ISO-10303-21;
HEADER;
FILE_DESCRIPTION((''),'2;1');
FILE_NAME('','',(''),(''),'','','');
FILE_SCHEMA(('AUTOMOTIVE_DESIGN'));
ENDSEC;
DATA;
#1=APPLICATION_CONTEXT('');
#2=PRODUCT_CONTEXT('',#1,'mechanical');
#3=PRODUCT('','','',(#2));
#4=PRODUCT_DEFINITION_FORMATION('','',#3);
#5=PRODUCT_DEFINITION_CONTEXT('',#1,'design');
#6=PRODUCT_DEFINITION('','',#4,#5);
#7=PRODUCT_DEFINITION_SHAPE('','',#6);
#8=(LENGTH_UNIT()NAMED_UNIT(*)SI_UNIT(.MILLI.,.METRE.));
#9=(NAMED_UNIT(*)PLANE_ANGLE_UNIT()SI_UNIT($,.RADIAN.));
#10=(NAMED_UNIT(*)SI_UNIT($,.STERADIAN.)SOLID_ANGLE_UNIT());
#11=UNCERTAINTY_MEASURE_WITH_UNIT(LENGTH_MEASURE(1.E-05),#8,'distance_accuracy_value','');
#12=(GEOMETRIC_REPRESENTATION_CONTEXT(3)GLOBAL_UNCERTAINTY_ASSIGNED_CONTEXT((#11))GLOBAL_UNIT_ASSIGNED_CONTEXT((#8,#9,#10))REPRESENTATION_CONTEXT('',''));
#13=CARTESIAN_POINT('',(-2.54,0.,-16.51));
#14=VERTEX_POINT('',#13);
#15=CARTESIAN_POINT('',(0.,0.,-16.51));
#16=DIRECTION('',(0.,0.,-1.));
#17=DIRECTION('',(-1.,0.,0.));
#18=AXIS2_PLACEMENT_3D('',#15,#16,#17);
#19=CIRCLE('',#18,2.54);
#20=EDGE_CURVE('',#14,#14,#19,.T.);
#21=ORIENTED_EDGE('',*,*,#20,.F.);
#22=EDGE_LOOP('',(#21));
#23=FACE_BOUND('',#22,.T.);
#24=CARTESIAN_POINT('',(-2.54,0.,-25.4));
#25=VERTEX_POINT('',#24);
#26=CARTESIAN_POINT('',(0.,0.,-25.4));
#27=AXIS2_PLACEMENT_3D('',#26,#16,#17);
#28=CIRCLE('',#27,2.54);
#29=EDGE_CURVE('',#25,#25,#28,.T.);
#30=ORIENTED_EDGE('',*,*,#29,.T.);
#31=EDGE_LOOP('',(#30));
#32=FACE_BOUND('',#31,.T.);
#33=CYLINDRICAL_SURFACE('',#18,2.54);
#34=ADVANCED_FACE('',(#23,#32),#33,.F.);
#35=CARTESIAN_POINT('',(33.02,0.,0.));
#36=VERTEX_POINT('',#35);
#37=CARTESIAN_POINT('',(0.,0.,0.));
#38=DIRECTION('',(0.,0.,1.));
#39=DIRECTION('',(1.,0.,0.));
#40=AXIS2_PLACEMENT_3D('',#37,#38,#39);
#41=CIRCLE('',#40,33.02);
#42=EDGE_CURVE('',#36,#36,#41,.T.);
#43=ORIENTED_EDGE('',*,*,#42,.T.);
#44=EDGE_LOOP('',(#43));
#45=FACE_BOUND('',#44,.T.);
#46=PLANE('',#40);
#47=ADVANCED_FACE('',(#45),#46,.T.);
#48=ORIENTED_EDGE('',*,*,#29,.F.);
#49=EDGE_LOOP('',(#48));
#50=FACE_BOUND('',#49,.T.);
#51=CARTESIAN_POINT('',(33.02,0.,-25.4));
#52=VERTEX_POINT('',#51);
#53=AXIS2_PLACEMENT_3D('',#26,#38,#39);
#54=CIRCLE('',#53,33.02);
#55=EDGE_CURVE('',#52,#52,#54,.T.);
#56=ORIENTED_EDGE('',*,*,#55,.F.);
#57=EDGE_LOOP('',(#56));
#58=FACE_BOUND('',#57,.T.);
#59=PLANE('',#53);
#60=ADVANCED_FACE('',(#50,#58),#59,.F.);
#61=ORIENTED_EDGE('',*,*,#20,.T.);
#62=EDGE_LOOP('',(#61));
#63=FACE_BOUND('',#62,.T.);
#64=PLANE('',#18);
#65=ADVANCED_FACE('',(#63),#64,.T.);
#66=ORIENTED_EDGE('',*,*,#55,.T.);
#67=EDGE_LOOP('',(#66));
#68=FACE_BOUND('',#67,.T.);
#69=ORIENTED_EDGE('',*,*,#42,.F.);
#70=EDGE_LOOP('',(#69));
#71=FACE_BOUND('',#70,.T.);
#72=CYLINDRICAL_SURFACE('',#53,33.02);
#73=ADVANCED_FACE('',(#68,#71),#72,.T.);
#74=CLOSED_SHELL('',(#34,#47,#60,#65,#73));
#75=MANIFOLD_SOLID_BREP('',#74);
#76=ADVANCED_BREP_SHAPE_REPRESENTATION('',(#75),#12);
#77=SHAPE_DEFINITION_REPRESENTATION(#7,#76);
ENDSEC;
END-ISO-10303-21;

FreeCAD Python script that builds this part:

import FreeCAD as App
import Part
import Sketcher
from FreeCAD import Vector
Q = App.Units.Quantity

doc = App.newDocument("Part")
body = doc.addObject("PartDesign::Body", "Body")

# Sketch on XY plane
sketch1 = body.newObject("Sketcher::SketchObject", "Sketch")
sketch1.AttachmentSupport = (doc.getObject("XY_Plane"), [""])
sketch1.MapMode = "FlatFace"
sketch1.addGeometry(Part.Circle(Vector(0, 0, 0), Vector(0, 0, 1), 33), False)
sketch1.addConstraint(Sketcher.Constraint("Coincident", 0, 3, -1, 1))
sketch1.addConstraint(Sketcher.Constraint("Diameter", 0, Q("2.6 in")))
pad1 = body.newObject("PartDesign::Pad", "Pad")
pad1.Profile = sketch1
pad1.Length = Q("1 in")
pad1.Reversed = True

# Sketch on XY plane
sketch2 = body.newObject("Sketcher::SketchObject", "Sketch001")
sketch2.AttachmentSupport = (doc.getObject("XY_Plane"), [""])
sketch2.MapMode = "FlatFace"
sketch2.AttachmentOffset = App.Placement(Vector(0, 0, -1 * 25.4), App.Rotation())
sketch2.addGeometry(Part.Circle(Vector(0, 0, 0), Vector(0, 0, 1), 2.5), False)
sketch2.addConstraint(Sketcher.Constraint("Coincident", 0, 3, -1, 1))
sketch2.addConstraint(Sketcher.Constraint("Diameter", 0, Q("0.2 in")))
pocket1 = body.newObject("PartDesign::Pocket", "Pocket")
pocket1.Profile = sketch2
pocket1.Length = Q("0.35 in")
pocket1.Reversed = True

doc.recompute()
